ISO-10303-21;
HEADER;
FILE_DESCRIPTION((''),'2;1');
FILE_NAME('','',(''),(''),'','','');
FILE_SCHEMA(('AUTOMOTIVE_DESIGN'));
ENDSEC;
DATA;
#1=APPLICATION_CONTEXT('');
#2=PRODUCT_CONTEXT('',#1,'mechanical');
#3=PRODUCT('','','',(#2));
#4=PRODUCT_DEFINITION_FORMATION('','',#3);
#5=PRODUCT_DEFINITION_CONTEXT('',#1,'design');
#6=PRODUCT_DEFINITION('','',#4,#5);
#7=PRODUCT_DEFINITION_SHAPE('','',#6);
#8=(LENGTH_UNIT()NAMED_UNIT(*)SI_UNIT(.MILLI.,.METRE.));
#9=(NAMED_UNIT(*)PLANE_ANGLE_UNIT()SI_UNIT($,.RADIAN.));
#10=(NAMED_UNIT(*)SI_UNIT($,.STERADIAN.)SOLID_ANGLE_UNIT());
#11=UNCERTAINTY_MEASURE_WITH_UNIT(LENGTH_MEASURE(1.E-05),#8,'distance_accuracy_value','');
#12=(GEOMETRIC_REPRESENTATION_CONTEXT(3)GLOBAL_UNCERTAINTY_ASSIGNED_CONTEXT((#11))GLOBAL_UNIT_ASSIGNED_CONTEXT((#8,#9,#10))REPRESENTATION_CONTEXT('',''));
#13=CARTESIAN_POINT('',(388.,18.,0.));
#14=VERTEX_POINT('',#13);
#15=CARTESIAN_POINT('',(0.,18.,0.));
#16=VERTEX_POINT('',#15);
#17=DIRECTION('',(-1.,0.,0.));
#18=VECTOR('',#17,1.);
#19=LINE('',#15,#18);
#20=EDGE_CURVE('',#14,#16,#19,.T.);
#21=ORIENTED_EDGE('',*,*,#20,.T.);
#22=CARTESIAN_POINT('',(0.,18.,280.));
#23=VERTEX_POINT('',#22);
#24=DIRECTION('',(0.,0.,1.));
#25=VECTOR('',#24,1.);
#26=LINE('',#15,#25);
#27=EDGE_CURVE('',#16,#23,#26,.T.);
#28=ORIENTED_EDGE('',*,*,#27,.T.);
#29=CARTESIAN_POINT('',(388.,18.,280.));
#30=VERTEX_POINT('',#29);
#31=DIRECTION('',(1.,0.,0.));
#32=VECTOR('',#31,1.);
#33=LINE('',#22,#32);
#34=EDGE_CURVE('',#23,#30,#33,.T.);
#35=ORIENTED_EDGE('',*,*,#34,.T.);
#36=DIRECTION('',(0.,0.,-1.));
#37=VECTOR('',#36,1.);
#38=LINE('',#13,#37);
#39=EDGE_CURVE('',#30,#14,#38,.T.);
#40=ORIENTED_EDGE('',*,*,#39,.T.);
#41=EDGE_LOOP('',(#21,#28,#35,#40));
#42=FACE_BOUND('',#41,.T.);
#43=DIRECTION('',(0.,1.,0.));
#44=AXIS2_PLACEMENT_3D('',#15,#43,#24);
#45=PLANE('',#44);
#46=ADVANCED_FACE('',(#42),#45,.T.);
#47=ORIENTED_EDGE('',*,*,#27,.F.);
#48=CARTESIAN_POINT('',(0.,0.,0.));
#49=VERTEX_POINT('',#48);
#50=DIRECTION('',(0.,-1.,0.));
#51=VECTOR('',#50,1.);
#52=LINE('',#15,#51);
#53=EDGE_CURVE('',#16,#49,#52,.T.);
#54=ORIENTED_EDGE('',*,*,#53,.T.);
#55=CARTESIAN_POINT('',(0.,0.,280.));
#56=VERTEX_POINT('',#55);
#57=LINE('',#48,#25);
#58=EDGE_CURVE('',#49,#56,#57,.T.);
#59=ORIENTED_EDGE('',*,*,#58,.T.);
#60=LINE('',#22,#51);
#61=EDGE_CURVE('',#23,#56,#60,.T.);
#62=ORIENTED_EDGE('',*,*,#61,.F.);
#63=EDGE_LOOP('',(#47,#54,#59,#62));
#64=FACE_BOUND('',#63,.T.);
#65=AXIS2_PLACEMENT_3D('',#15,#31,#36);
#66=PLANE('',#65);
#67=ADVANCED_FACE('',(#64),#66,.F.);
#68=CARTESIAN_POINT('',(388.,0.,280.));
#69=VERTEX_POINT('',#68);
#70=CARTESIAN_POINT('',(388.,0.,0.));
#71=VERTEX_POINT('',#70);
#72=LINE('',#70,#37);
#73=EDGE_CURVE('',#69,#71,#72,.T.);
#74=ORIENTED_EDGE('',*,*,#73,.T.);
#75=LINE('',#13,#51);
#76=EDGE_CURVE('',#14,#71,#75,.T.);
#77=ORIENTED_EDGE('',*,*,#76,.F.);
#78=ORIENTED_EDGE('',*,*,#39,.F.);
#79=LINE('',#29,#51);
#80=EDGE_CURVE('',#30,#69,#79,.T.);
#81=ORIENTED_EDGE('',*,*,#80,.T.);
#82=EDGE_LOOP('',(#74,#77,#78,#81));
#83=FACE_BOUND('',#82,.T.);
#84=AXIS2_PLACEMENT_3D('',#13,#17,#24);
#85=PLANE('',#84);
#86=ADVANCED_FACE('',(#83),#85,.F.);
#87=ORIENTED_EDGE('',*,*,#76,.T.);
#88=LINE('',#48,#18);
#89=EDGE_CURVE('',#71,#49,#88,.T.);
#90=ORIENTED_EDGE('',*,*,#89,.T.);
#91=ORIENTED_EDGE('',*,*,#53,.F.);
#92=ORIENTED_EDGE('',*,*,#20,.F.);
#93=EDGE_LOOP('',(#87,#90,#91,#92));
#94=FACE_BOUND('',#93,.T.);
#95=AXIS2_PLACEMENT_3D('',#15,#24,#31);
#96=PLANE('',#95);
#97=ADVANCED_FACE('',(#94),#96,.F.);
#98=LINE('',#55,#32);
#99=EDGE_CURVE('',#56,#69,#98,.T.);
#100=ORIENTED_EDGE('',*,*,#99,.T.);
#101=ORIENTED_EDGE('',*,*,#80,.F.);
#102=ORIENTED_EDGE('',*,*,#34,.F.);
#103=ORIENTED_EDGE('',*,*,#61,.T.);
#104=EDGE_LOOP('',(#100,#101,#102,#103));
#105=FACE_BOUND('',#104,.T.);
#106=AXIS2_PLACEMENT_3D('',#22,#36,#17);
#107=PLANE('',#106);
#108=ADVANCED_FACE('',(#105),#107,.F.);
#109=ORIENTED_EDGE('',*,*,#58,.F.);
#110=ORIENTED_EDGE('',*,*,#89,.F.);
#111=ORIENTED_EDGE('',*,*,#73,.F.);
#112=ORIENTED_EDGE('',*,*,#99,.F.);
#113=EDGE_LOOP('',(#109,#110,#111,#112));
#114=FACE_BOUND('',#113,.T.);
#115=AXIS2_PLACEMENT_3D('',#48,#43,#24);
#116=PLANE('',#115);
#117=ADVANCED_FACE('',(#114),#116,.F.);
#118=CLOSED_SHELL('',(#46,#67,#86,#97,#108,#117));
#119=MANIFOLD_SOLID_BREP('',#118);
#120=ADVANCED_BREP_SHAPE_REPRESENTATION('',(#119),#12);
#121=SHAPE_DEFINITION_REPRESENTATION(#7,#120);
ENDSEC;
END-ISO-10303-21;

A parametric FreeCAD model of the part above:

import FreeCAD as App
import Part
import Sketcher

V = App.Vector

doc = App.newDocument("Part")
body = doc.addObject("PartDesign::Body", "Body")

# Sketch on XZ plane
sketch1 = doc.addObject("Sketcher::SketchObject", "Sketch")
body.addObject(sketch1)
sketch1.AttachmentSupport = (doc.XZ_Plane, [""])
sketch1.MapMode = "FlatFace"
sketch1.addGeometry([
    Part.LineSegment(V(0, 0, 0), V(0, 280, 0)),
    Part.LineSegment(V(0, 280, 0), V(388, 280, 0)),
    Part.LineSegment(V(388, 280, 0), V(388, 0, 0)),
    Part.LineSegment(V(388, 0, 0), V(0, 0, 0)),
], False)
sketch1.addConstraint([
    Sketcher.Constraint("Coincident", 0, 2, 1, 1),
    Sketcher.Constraint("Coincident", 1, 2, 2, 1),
    Sketcher.Constraint("Coincident", 2, 2, 3, 1),
    Sketcher.Constraint("Coincident", 3, 2, 0, 1),
    Sketcher.Constraint("Vertical", 0),
    Sketcher.Constraint("Horizontal", 1),
    Sketcher.Constraint("Vertical", 2),
    Sketcher.Constraint("Horizontal", 3),
    Sketcher.Constraint("Coincident", 3, 2, -1, 1),
    Sketcher.Constraint("DistanceX", 1, 1, 1, 2, 388.0),
    Sketcher.Constraint("DistanceY", 0, 1, 0, 2, 280.0),
])
pad1 = doc.addObject("PartDesign::Pad", "Pad")
body.addObject(pad1)
pad1.Profile = sketch1
pad1.Length = 18
pad1.Reversed = True

doc.recompute()
